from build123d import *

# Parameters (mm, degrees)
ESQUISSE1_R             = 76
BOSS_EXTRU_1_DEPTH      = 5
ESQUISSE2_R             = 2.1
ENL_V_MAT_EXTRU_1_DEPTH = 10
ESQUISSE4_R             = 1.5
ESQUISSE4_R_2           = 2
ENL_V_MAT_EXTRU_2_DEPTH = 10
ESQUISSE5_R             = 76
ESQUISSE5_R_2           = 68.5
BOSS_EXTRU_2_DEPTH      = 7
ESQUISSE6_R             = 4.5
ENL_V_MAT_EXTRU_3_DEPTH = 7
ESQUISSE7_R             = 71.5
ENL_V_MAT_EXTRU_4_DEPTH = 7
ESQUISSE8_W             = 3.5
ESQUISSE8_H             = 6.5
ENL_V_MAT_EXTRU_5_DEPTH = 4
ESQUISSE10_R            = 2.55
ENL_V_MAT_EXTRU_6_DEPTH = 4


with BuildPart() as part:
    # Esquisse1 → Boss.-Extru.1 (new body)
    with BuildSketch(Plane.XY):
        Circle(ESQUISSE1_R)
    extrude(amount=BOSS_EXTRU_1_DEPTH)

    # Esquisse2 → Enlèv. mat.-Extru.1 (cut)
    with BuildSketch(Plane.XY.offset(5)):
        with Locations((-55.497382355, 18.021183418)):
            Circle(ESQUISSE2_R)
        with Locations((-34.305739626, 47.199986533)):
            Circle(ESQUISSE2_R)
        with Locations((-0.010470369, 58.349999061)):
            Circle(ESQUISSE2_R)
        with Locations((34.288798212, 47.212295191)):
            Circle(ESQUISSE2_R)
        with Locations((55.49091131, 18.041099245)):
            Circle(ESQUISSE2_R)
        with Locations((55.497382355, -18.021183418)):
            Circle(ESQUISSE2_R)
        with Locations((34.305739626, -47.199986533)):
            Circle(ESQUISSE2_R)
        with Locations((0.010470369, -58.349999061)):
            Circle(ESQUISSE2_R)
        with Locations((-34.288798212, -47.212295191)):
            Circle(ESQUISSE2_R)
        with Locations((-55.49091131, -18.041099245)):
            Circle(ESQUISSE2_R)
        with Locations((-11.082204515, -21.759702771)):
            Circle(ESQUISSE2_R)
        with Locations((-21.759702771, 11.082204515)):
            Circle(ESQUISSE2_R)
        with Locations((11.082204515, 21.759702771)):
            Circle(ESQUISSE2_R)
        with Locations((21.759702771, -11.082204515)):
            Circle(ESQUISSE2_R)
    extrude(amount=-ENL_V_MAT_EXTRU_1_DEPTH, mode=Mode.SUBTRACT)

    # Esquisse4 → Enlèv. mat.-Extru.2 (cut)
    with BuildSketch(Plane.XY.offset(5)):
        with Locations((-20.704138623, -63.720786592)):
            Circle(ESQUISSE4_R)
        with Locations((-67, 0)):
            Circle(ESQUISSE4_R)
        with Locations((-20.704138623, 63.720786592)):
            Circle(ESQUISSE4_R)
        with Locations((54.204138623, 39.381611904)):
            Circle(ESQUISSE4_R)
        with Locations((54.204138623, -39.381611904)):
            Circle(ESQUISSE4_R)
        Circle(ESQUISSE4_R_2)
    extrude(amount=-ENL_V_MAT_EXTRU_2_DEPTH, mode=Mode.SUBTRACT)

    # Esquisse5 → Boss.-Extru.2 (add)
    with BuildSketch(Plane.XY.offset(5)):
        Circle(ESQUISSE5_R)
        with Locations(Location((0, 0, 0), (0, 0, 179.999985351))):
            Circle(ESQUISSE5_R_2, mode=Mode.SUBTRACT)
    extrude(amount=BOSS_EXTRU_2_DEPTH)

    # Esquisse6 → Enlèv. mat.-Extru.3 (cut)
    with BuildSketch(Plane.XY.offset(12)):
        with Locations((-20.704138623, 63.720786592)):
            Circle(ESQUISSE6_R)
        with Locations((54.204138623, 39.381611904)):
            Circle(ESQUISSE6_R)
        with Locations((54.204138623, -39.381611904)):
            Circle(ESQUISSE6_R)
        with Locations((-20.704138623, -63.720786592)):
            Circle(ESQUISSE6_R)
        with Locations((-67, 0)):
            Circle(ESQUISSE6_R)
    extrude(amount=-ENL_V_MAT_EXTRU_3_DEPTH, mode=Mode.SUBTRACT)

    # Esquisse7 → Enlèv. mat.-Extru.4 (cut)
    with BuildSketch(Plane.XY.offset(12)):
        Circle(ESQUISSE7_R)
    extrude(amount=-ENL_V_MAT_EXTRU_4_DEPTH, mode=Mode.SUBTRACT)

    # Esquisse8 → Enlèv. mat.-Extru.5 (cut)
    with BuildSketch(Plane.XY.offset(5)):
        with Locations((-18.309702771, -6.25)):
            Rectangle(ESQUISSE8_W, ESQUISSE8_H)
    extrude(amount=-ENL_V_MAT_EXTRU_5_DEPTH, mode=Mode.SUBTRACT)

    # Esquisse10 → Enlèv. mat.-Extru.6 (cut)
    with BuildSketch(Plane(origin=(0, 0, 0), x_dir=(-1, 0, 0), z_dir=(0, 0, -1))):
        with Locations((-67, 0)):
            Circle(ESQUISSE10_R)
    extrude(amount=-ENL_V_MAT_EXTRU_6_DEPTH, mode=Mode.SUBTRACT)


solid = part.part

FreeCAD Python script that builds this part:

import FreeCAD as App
import Part
import Sketcher
from FreeCAD import Vector

doc = App.newDocument("Part")
body = doc.addObject("PartDesign::Body", "Body")

# Sketch on XY plane
sketch1 = body.newObject("Sketcher::SketchObject", "Sketch")
sketch1.AttachmentSupport = (doc.getObject("XY_Plane"), [""])
sketch1.MapMode = "FlatFace"
sketch1.addGeometry(Part.Circle(Vector(0, 0, 0), Vector(0, 0, 1), 76), False)
sketch1.addConstraint([
    Sketcher.Constraint("Coincident", 0, 3, -1, 1),
    Sketcher.Constraint("Diameter", 0, 152.0),
])
pad1 = body.newObject("PartDesign::Pad", "Pad")
pad1.Profile = sketch1
pad1.Length = 5

# Sketch on XY plane
sketch2 = body.newObject("Sketcher::SketchObject", "Sketch001")
sketch2.AttachmentSupport = (doc.getObject("XY_Plane"), [""])
sketch2.MapMode = "FlatFace"
sketch2.AttachmentOffset = App.Placement(Vector(0, 0, 5), App.Rotation())
sketch2.addGeometry([
    Part.Circle(Vector(-55.5, 18, 0), Vector(0, 0, 1), 2.1),  # 0
    Part.Circle(Vector(-34.3, 47.2, 0), Vector(0, 0, 1), 2.1),  # 1
    Part.Circle(Vector(0, 58.3, 0), Vector(0, 0, 1), 2.1),  # 2
    Part.Circle(Vector(34.3, 47.2, 0), Vector(0, 0, 1), 2.1),  # 3
    Part.Circle(Vector(55.5, 18, 0), Vector(0, 0, 1), 2.1),  # 4
    Part.Circle(Vector(55.5, -18, 0), Vector(0, 0, 1), 2.1),  # 5
    Part.Circle(Vector(34.3, -47.2, 0), Vector(0, 0, 1), 2.1),  # 6
    Part.Circle(Vector(0, -58.3, 0), Vector(0, 0, 1), 2.1),  # 7
    Part.Circle(Vector(-34.3, -47.2, 0), Vector(0, 0, 1), 2.1),  # 8
    Part.Circle(Vector(-55.5, -18, 0), Vector(0, 0, 1), 2.1),  # 9
    Part.Circle(Vector(-11.1, -21.8, 0), Vector(0, 0, 1), 2.1),  # 10
    Part.Circle(Vector(-21.8, 11.1, 0), Vector(0, 0, 1), 2.1),  # 11
    Part.Circle(Vector(11.1, 21.8, 0), Vector(0, 0, 1), 2.1),  # 12
    Part.Circle(Vector(21.8, -11.1, 0), Vector(0, 0, 1), 2.1),  # 13
], False)
sketch2.addConstraint([
    Sketcher.Constraint("Equal", 0, 1),
    Sketcher.Constraint("Equal", 1, 2),
    Sketcher.Constraint("Equal", 2, 3),
    Sketcher.Constraint("Equal", 3, 4),
    Sketcher.Constraint("Equal", 4, 5),
    Sketcher.Constraint("Equal", 5, 6),
    Sketcher.Constraint("Equal", 6, 7),
    Sketcher.Constraint("Equal", 7, 8),
    Sketcher.Constraint("Equal", 8, 9),
    Sketcher.Constraint("Equal", 9, 10),
    Sketcher.Constraint("Equal", 10, 11),
    Sketcher.Constraint("Equal", 11, 12),
    Sketcher.Constraint("Equal", 12, 13),
    Sketcher.Constraint("Symmetric", 0, 3, 5, 3, -1, 1),
    Sketcher.Constraint("Symmetric", 1, 3, 6, 3, -1, 1),
    Sketcher.Constraint("Symmetric", 2, 3, 7, 3, -1, 1),
    Sketcher.Constraint("Symmetric", 3, 3, 8, 3, -1, 1),
    Sketcher.Constraint("Symmetric", 4, 3, 9, 3, -1, 1),
    Sketcher.Constraint("Symmetric", 10, 3, 12, 3, -1, 1),
    Sketcher.Constraint("Symmetric", 11, 3, 13, 3, -1, 1),
    Sketcher.Constraint("Diameter", 0, 4.2),
    Sketcher.Constraint("DistanceY", -1, 1, 2, 3, 58.349999),
    Sketcher.Constraint("DistanceX", -1, 1, 3, 3, 34.288798),
    Sketcher.Constraint("DistanceY", -1, 1, 4, 3, 18.041099),
    Sketcher.Constraint("DistanceX", 11, 3, 10, 3, 10.677498),
    Sketcher.Constraint("DistanceY", 11, 3, 12, 3, 10.677498),
    Sketcher.Constraint("DistanceX", 1, 3, -1, 1, 34.30574),
    Sketcher.Constraint("DistanceX", 2, 3, -1, 1, 0.01047),
    Sketcher.Constraint("DistanceX", -1, 1, 4, 3, 55.490911),
    Sketcher.Constraint("DistanceX", 0, 3, 2, 3, 55.486912),
    Sketcher.Constraint("DistanceY", 1, 3, 3, 3, 0.012309),
    Sketcher.Constraint("DistanceY", 0, 3, 3, 3, 29.191112),
    Sketcher.Constraint("DistanceY", 5, 3, 3, 3, 65.233479),
    Sketcher.Constraint("DistanceX", 0, 3, 11, 3, 33.73768),
    Sketcher.Constraint("DistanceY", 11, 3, 0, 3, 6.938979),
])
pocket1 = body.newObject("PartDesign::Pocket", "Pocket")
pocket1.Profile = sketch2
pocket1.Length = 10

# Sketch on XY plane
sketch3 = body.newObject("Sketcher::SketchObject", "Sketch002")
sketch3.AttachmentSupport = (doc.getObject("XY_Plane"), [""])
sketch3.MapMode = "FlatFace"
sketch3.AttachmentOffset = App.Placement(Vector(0, 0, 5), App.Rotation())
sketch3.addGeometry([
    Part.Circle(Vector(-20.7, -63.7, 0), Vector(0, 0, 1), 1.5),  # 0
    Part.Circle(Vector(-67, 0, 0), Vector(0, 0, 1), 1.5),  # 1
    Part.Circle(Vector(-20.7, 63.7, 0), Vector(0, 0, 1), 1.5),  # 2
    Part.Circle(Vector(54.2, 39.4, 0), Vector(0, 0, 1), 1.5),  # 3
    Part.Circle(Vector(54.2, -39.4, 0), Vector(0, 0, 1), 1.5),  # 4
    Part.Circle(Vector(0, 0, 0), Vector(0, 0, 1), 2),  # 5
], False)
sketch3.addConstraint([
    Sketcher.Constraint("Coincident", 5, 3, -1, 1),
    Sketcher.Constraint("Equal", 0, 1),
    Sketcher.Constraint("Equal", 1, 2),
    Sketcher.Constraint("Equal", 2, 3),
    Sketcher.Constraint("Equal", 3, 4),
    Sketcher.Constraint("Symmetric", 0, 3, 2, 3, -1),
    Sketcher.Constraint("Symmetric", 3, 3, 4, 3, -1),
    Sketcher.Constraint("PointOnObject", 1, 3, -1),
    Sketcher.Constraint("Diameter", 0, 3.0),
    Sketcher.Constraint("Diameter", 5, 4.0),
    Sketcher.Constraint("DistanceX", 1, 3, -1, 1, 67.0),
    Sketcher.Constraint("DistanceY", 0, 3, 3, 3, 103.102398),
    Sketcher.Constraint("DistanceX", 0, 3, -1, 1, 20.704139),
    Sketcher.Constraint("DistanceX", -1, 1, 3, 3, 54.204139),
    Sketcher.Constraint("DistanceY", -1, 1, 3, 3, 39.381612),
])
pocket2 = body.newObject("PartDesign::Pocket", "Pocket001")
pocket2.Profile = sketch3
pocket2.Length = 10

# Sketch on XY plane
sketch4 = body.newObject("Sketcher::SketchObject", "Sketch003")
sketch4.AttachmentSupport = (doc.getObject("XY_Plane"), [""])
sketch4.MapMode = "FlatFace"
sketch4.AttachmentOffset = App.Placement(Vector(0, 0, 5), App.Rotation())
sketch4.addGeometry([
    Part.Circle(Vector(0, 0, 0), Vector(0, 0, 1), 76),
    Part.Circle(Vector(0, 0, 0), Vector(0, 0, 1), 68),
], False)
sketch4.addConstraint([
    Sketcher.Constraint("Coincident", 0, 3, -1, 1),
    Sketcher.Constraint("Coincident", 1, 3, -1, 1),
    Sketcher.Constraint("Diameter", 0, 152.0),
    Sketcher.Constraint("Diameter", 1, 137.0),
])
pad2 = body.newObject("PartDesign::Pad", "Pad001")
pad2.Profile = sketch4
pad2.Length = 7

# Sketch on XY plane
sketch5 = body.newObject("Sketcher::SketchObject", "Sketch004")
sketch5.AttachmentSupport = (doc.getObject("XY_Plane"), [""])
sketch5.MapMode = "FlatFace"
sketch5.AttachmentOffset = App.Placement(Vector(0, 0, 12), App.Rotation())
sketch5.addGeometry([
    Part.Circle(Vector(-20.7, 63.7, 0), Vector(0, 0, 1), 4.5),  # 0
    Part.Circle(Vector(54.2, 39.4, 0), Vector(0, 0, 1), 4.5),  # 1
    Part.Circle(Vector(54.2, -39.4, 0), Vector(0, 0, 1), 4.5),  # 2
    Part.Circle(Vector(-20.7, -63.7, 0), Vector(0, 0, 1), 4.5),  # 3
    Part.Circle(Vector(-67, 0, 0), Vector(0, 0, 1), 4.5),  # 4
], False)
sketch5.addConstraint([
    Sketcher.Constraint("Equal", 0, 1),
    Sketcher.Constraint("Equal", 1, 2),
    Sketcher.Constraint("Equal", 2, 3),
    Sketcher.Constraint("Equal", 3, 4),
    Sketcher.Constraint("Symmetric", 1, 3, 2, 3, -1),
    Sketcher.Constraint("Symmetric", 0, 3, 3, 3, -1),
    Sketcher.Constraint("PointOnObject", 4, 3, -1),
    Sketcher.Constraint("Diameter", 0, 9.0),
    Sketcher.Constraint("DistanceX", 4, 3, -1, 1, 67.0),
    Sketcher.Constraint("DistanceY", 2, 3, 0, 3, 103.102398),
    Sketcher.Constraint("DistanceX", 0, 3, -1, 1, 20.704139),
    Sketcher.Constraint("DistanceX", -1, 1, 1, 3, 54.204139),
    Sketcher.Constraint("DistanceY", -1, 1, 1, 3, 39.381612),
])
pocket3 = body.newObject("PartDesign::Pocket", "Pocket002")
pocket3.Profile = sketch5
pocket3.Length = 7

# Sketch on XY plane
sketch6 = body.newObject("Sketcher::SketchObject", "Sketch005")
sketch6.AttachmentSupport = (doc.getObject("XY_Plane"), [""])
sketch6.MapMode = "FlatFace"
sketch6.AttachmentOffset = App.Placement(Vector(0, 0, 12), App.Rotation())
sketch6.addGeometry(Part.Circle(Vector(0, 0, 0), Vector(0, 0, 1), 72), False)
sketch6.addConstraint([
    Sketcher.Constraint("Coincident", 0, 3, -1, 1),
    Sketcher.Constraint("Diameter", 0, 143.0),
])
pocket4 = body.newObject("PartDesign::Pocket", "Pocket003")
pocket4.Profile = sketch6
pocket4.Length = 7

# Sketch on XY plane
sketch7 = body.newObject("Sketcher::SketchObject", "Sketch006")
sketch7.AttachmentSupport = (doc.getObject("XY_Plane"), [""])
sketch7.MapMode = "FlatFace"
sketch7.AttachmentOffset = App.Placement(Vector(0, 0, 5), App.Rotation())
sketch7.addGeometry([
    Part.LineSegment(Vector(-20.1, -3, 0), Vector(-20.1, -9.5, 0)),
    Part.LineSegment(Vector(-20.1, -9.5, 0), Vector(-16.6, -9.5, 0)),
    Part.LineSegment(Vector(-16.6, -9.5, 0), Vector(-16.6, -3, 0)),
    Part.LineSegment(Vector(-16.6, -3, 0), Vector(-20.1, -3, 0)),
], False)
sketch7.addConstraint([
    Sketcher.Constraint("Coincident", 0, 2, 1, 1),
    Sketcher.Constraint("Coincident", 1, 2, 2, 1),
    Sketcher.Constraint("Coincident", 2, 2, 3, 1),
    Sketcher.Constraint("Coincident", 3, 2, 0, 1),
    Sketcher.Constraint("Vertical", 0),
    Sketcher.Constraint("Horizontal", 1),
    Sketcher.Constraint("Vertical", 2),
    Sketcher.Constraint("Horizontal", 3),
    Sketcher.Constraint("DistanceX", 1, 1, 1, 2, 3.5),
    Sketcher.Constraint("DistanceY", 0, 2, 0, 1, 6.5),
    Sketcher.Constraint("DistanceY", 2, 2, -1, 1, 3.0),
    Sketcher.Constraint("DistanceX", 0, 2, -1, 1, 20.059703),
])
pocket5 = body.newObject("PartDesign::Pocket", "Pocket004")
pocket5.Profile = sketch7
pocket5.Length = 4

# Sketch on XY plane
sketch8 = body.newObject("Sketcher::SketchObject", "Sketch007")
sketch8.AttachmentSupport = (doc.getObject("XY_Plane"), [""])
sketch8.MapMode = "FlatFace"
sketch8.addGeometry(Part.Circle(Vector(67, 0, 0), Vector(0, 0, 1), 2.5), False)
sketch8.addConstraint([
    Sketcher.Constraint("PointOnObject", 0, 3, -1),
    Sketcher.Constraint("Diameter", 0, 5.1),
    Sketcher.Constraint("DistanceX", -1, 1, 0, 3, 67.0),
])
pocket6 = body.newObject("PartDesign::Pocket", "Pocket005")
pocket6.Profile = sketch8
pocket6.Length = 4
pocket6.Reversed = True

doc.recompute()
